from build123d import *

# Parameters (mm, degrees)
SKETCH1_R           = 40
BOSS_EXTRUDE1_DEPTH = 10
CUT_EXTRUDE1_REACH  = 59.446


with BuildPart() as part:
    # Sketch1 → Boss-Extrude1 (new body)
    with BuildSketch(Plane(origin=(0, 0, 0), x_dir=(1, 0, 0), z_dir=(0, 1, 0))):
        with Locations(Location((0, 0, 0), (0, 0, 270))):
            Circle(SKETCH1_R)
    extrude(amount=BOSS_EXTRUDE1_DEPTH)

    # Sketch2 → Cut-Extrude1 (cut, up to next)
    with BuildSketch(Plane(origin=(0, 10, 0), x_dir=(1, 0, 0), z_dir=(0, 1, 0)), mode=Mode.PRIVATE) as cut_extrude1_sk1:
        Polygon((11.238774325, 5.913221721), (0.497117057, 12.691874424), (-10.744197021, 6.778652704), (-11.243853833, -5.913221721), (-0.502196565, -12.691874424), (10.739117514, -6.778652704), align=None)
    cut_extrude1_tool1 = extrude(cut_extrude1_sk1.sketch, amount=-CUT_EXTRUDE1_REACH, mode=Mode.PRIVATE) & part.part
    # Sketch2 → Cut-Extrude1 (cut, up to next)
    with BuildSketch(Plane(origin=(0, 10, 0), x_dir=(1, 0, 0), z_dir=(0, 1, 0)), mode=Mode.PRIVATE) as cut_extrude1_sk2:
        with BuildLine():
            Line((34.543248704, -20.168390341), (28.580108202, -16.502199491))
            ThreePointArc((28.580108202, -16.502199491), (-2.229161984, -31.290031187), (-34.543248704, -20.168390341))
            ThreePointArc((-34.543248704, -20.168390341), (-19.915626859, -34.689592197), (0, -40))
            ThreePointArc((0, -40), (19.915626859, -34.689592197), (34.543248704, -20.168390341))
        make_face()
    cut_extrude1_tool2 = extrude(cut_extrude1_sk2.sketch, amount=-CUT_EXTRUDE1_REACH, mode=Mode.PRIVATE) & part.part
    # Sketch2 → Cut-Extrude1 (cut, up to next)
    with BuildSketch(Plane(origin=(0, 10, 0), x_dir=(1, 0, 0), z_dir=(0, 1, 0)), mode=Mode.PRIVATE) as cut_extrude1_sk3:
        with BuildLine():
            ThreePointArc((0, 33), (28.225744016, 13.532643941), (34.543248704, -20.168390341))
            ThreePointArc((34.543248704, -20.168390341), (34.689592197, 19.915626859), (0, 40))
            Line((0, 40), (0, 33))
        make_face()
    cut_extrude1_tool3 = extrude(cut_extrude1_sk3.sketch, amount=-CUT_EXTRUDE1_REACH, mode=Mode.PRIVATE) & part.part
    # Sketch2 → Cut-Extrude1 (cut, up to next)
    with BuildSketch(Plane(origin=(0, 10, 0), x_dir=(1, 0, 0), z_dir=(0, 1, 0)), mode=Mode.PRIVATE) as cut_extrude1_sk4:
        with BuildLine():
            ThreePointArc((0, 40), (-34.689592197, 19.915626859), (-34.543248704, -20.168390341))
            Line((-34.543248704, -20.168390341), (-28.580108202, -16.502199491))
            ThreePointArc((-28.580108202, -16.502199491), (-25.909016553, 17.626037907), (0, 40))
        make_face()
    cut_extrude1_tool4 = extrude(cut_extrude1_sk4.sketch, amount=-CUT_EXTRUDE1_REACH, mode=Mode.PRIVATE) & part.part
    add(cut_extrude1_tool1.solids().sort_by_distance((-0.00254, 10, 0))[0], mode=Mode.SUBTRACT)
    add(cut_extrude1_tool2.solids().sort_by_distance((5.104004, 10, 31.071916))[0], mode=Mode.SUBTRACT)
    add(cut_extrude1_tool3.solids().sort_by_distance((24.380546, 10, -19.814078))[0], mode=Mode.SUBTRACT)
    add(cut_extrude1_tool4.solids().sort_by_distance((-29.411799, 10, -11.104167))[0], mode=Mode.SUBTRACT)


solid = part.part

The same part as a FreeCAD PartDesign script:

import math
import FreeCAD as App
import Part
import Sketcher
from FreeCAD import Vector

doc = App.newDocument("Part")
params = doc.addObject("Spreadsheet::Sheet", "Params")
for row, (alias, value) in enumerate([
    ("sketch1_diameter", "80 mm"),
    ("pad1_length", "10 mm"),
    ("sketch3_radius", "45 mm"),
    ("sketch3_radius2", "40 mm"),
    ("sketch3_length", "7 mm"),
    ("sketch4_radius", "45 mm"),
    ("sketch4_radius2", "40 mm"),
    ("sketch4_height", "7 mm"),
    ("sketch5_radius", "40 mm"),
    ("sketch5_radius2", "45 mm"),
    ("sketch5_length", "7 mm"),
], start=1):
    params.set(f"A{row}", alias)
    params.set(f"B{row}", "=" + value)
    params.setAlias(f"B{row}", alias)

body = doc.addObject("PartDesign::Body", "Body")

sketch1 = body.newObject("Sketcher::SketchObject", "Sketch")
sketch1.AttachmentSupport = (doc.getObject("XZ_Plane"), [""])
sketch1.MapMode = "FlatFace"
sketch1.addGeometry(Part.Circle(Vector(0, 0, 0), Vector(0, 0, 1), 40), False)
sketch1.addConstraint([
    Sketcher.Constraint("Coincident", 0, 3, -1, 1),
    Sketcher.Constraint("Diameter", 0, 80.0),
])
sketch1.setExpression("Constraints[1]", "Params.sketch1_diameter")
pad1 = body.newObject("PartDesign::Pad", "Pad")
pad1.Profile = sketch1
pad1.setExpression("Length", "Params.pad1_length")
pad1.Reversed = True

sketch2 = body.newObject("Sketcher::SketchObject", "Sketch001")
sketch2.AttachmentSupport = (doc.getObject("XZ_Plane"), [""])
sketch2.MapMode = "FlatFace"
sketch2.AttachmentOffset = App.Placement(Vector(0, 0, -10), App.Rotation())
sketch2.addGeometry([
    Part.LineSegment(Vector(11.238774, -5.913222, 0), Vector(0.497117, -12.691874, 0)),
    Part.LineSegment(Vector(0.497117, -12.691874, 0), Vector(-10.744197, -6.778653, 0)),
    Part.LineSegment(Vector(-10.744197, -6.778653, 0), Vector(-11.243854, 5.913222, 0)),
    Part.LineSegment(Vector(-11.243854, 5.913222, 0), Vector(-0.502197, 12.691874, 0)),
    Part.LineSegment(Vector(-0.502197, 12.691874, 0), Vector(10.739118, 6.778653, 0)),
    Part.LineSegment(Vector(10.739118, 6.778653, 0), Vector(11.238774, -5.913222, 0)),
], False)
sketch2.addConstraint([
    Sketcher.Constraint("Coincident", 0, 2, 1, 1),
    Sketcher.Constraint("Coincident", 1, 2, 2, 1),
    Sketcher.Constraint("Coincident", 2, 2, 3, 1),
    Sketcher.Constraint("Coincident", 3, 2, 4, 1),
    Sketcher.Constraint("Coincident", 4, 2, 5, 1),
    Sketcher.Constraint("Coincident", 5, 2, 0, 1),
    Sketcher.Constraint("Parallel", 0, 3),
    Sketcher.Constraint("Parallel", 1, 4),
    Sketcher.Constraint("Parallel", 2, 5),
    Sketcher.Constraint("Equal", 0, 1),
    Sketcher.Constraint("Equal", 1, 2),
    Sketcher.Constraint("Equal", 2, 3),
    Sketcher.Constraint("DistanceX", 1, 2, 3, 2, 10.242),
    Sketcher.Constraint("DistanceY", -1, 1, 2, 2, 5.913222),
    Sketcher.Constraint("DistanceY", 5, 2, -1, 1, 5.913222),
    Sketcher.Constraint("DistanceY", 0, 2, 1, 2, 5.913222),
    Sketcher.Constraint("DistanceX", 2, 2, 0, 2, 11.740971),
    Sketcher.Constraint("DistanceX", -1, 1, 0, 2, 0.497117),
])
pocket1 = body.newObject("PartDesign::Pocket", "Pocket")
pocket1.Profile = sketch2
pocket1.Type = "UpToFirst"
pocket1.Reversed = True

sketch3 = body.newObject("Sketcher::SketchObject", "Sketch002")
sketch3.AttachmentSupport = (doc.getObject("XZ_Plane"), [""])
sketch3.MapMode = "FlatFace"
sketch3.AttachmentOffset = App.Placement(Vector(0, 0, -10), App.Rotation())
sketch3.addGeometry([
    Part.LineSegment(Vector(34.543249, 20.16839, 0), Vector(28.580108, 16.502199, 0)),
    Part.ArcOfCircle(Part.Circle(Vector(-4.838355, -13.634262, 0), Vector(0, 0, 1), 45), math.radians(42.043849), math.radians(131.308167)),
    Part.ArcOfCircle(Part.Circle(Vector(0, 0, 0), Vector(0, 0, 1), 40), math.radians(90), math.radians(149.721092)),
    Part.ArcOfCircle(Part.Circle(Vector(0, 0, 0), Vector(0, 0, 1), 40), math.radians(30.278908), math.radians(90)),
], False)
sketch3.addConstraint([
    Sketcher.Constraint("Coincident", 0, 2, 1, 1),
    Sketcher.Constraint("Coincident", 1, 2, 2, 2),
    Sketcher.Constraint("Tangent", 2, 1, 3, 2),
    Sketcher.Constraint("Coincident", 3, 1, 0, 1),
    Sketcher.Constraint("Coincident", 2, 3, -1, 1),
    Sketcher.Constraint("Equal", 2, 3),
    Sketcher.Constraint("PointOnObject", 2, 1, -2),
    Sketcher.Constraint("Horizontal", 1, 2, 3, 1),
    Sketcher.Constraint("Radius", 1, 45.0),
    Sketcher.Constraint("Radius", 2, 40.0),
    Sketcher.Constraint("Distance", 0, 7.0),
    Sketcher.Constraint("DistanceY", -1, 1, 0, 2, 16.502199),
    Sketcher.Constraint("DistanceY", 1, 3, -1, 1, 13.634262),
])
sketch3.setExpression("Constraints[8]", "Params.sketch3_radius")
sketch3.setExpression("Constraints[9]", "Params.sketch3_radius2")
sketch3.setExpression("Constraints[10]", "Params.sketch3_length")
pocket2 = body.newObject("PartDesign::Pocket", "Pocket001")
pocket2.Profile = sketch3
pocket2.Type = "UpToFirst"
pocket2.Reversed = True

sketch4 = body.newObject("Sketcher::SketchObject", "Sketch003")
sketch4.AttachmentSupport = (doc.getObject("XZ_Plane"), [""])
sketch4.MapMode = "FlatFace"
sketch4.AttachmentOffset = App.Placement(Vector(0, 0, -10), App.Rotation())
sketch4.addGeometry([
    Part.ArcOfCircle(Part.Circle(Vector(-9.509473, 10.983746, 0), Vector(0, 0, 1), 45), math.radians(-77.800186), math.radians(11.777007)),
    Part.ArcOfCircle(Part.Circle(Vector(0, 0, 0), Vector(0, 0, 1), 40), math.radians(-90), math.radians(30.278908)),
    Part.LineSegment(Vector(0, -40, 0), Vector(0, -33, 0)),
], False)
sketch4.addConstraint([
    Sketcher.Constraint("Coincident", 0, 2, 1, 2),
    Sketcher.Constraint("Coincident", 1, 1, 2, 1),
    Sketcher.Constraint("Coincident", 2, 2, 0, 1),
    Sketcher.Constraint("Vertical", 2),
    Sketcher.Constraint("Coincident", 1, 3, -1, 1),
    Sketcher.Constraint("PointOnObject", 1, 1, -2),
    Sketcher.Constraint("Radius", 0, 45.0),
    Sketcher.Constraint("Radius", 1, 40.0),
    Sketcher.Constraint("DistanceY", 2, 1, 2, 2, 7.0),
    Sketcher.Constraint("DistanceX", -1, 1, 0, 2, 34.543249),
])
sketch4.setExpression("Constraints[6]", "Params.sketch4_radius")
sketch4.setExpression("Constraints[7]", "Params.sketch4_radius2")
sketch4.setExpression("Constraints[8]", "Params.sketch4_height")
pocket3 = body.newObject("PartDesign::Pocket", "Pocket002")
pocket3.Profile = sketch4
pocket3.Type = "UpToFirst"
pocket3.Reversed = True

sketch5 = body.newObject("Sketcher::SketchObject", "Sketch004")
sketch5.AttachmentSupport = (doc.getObject("XZ_Plane"), [""])
sketch5.MapMode = "FlatFace"
sketch5.AttachmentOffset = App.Placement(Vector(0, 0, -10), App.Rotation())
sketch5.addGeometry([
    Part.ArcOfCircle(Part.Circle(Vector(0, 0, 0), Vector(0, 0, 1), 40), math.radians(149.721092), math.radians(270)),
    Part.LineSegment(Vector(-34.543249, 20.16839, 0), Vector(-28.580108, 16.502199, 0)),
    Part.ArcOfCircle(Part.Circle(Vector(14.246244, 2.685414, 0), Vector(0, 0, 1), 45), math.radians(162.119082), math.radians(251.543584)),
], False)
sketch5.addConstraint([
    Sketcher.Constraint("Coincident", 0, 1, 1, 1),
    Sketcher.Constraint("Coincident", 1, 2, 2, 1),
    Sketcher.Constraint("Coincident", 2, 2, 0, 2),
    Sketcher.Constraint("Coincident", 0, 3, -1, 1),
    Sketcher.Constraint("PointOnObject", 2, 2, -2),
    Sketcher.Constraint("Radius", 0, 40.0),
    Sketcher.Constraint("Radius", 2, 45.0),
    Sketcher.Constraint("Distance", 1, 7.0),
    Sketcher.Constraint("DistanceY", -1, 1, 1, 2, 16.502199),
    Sketcher.Constraint("DistanceX", 0, 1, -1, 1, 34.543249),
])
sketch5.setExpression("Constraints[5]", "Params.sketch5_radius")
sketch5.setExpression("Constraints[6]", "Params.sketch5_radius2")
sketch5.setExpression("Constraints[7]", "Params.sketch5_length")
pocket4 = body.newObject("PartDesign::Pocket", "Pocket003")
pocket4.Profile = sketch5
pocket4.Type = "UpToFirst"
pocket4.Reversed = True

doc.recompute()
